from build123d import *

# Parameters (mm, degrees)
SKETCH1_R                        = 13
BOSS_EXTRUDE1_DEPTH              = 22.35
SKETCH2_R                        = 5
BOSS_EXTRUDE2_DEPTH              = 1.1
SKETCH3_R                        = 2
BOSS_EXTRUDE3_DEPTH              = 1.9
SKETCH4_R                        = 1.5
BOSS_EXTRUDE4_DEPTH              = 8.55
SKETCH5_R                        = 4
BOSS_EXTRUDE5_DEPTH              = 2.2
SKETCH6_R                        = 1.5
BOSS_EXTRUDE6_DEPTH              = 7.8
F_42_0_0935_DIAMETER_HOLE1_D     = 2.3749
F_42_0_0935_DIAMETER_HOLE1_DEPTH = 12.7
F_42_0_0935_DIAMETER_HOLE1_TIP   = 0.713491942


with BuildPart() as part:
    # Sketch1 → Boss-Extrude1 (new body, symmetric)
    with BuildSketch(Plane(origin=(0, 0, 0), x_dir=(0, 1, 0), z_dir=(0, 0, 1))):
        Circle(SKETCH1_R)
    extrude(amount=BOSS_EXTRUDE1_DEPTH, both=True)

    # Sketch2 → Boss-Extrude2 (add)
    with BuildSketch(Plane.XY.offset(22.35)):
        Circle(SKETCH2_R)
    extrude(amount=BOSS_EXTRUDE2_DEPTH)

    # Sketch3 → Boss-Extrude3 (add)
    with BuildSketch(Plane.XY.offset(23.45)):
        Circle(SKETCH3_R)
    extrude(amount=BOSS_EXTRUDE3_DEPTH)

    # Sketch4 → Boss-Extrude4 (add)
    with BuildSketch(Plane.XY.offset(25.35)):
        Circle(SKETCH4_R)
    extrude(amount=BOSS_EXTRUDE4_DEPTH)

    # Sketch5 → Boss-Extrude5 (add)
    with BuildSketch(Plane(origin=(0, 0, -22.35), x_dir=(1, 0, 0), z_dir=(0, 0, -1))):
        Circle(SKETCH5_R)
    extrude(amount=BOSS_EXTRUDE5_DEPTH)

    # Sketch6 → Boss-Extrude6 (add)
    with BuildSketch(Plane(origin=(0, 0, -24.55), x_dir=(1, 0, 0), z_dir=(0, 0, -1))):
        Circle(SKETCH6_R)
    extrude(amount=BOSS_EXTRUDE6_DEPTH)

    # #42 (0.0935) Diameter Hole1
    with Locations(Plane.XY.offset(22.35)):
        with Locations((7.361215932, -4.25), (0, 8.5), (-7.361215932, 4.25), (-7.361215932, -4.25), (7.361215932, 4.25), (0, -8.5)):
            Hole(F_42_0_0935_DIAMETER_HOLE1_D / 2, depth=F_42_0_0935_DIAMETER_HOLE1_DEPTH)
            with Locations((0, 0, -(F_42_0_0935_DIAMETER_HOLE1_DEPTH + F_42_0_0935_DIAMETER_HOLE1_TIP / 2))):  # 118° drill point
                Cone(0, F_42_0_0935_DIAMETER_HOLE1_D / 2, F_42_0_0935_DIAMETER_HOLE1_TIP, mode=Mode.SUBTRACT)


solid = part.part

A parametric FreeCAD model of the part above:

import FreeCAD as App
import Part
import Sketcher

doc = App.newDocument("Part")
body = doc.addObject("PartDesign::Body", "Body")

# Sketch on XY plane
sketch1 = body.newObject("Sketcher::SketchObject", "Sketch")
sketch1.AttachmentSupport = (doc.getObject("XY_Plane"), [""])
sketch1.MapMode = "FlatFace"
sketch1.addGeometry(Part.Circle(App.Vector(0, 0, 0), App.Vector(0, 0, 1), 13), False)
sketch1.addConstraint(Sketcher.Constraint("Coincident", 0, 3, -1, 1))
sketch1.addConstraint(Sketcher.Constraint("Diameter", 0, 26.0))
pad1 = body.newObject("PartDesign::Pad", "Pad")
pad1.Profile = sketch1
pad1.Length = 44.7
pad1.Midplane = True

# Sketch on XY plane
sketch2 = body.newObject("Sketcher::SketchObject", "Sketch001")
sketch2.AttachmentSupport = (doc.getObject("XY_Plane"), [""])
sketch2.MapMode = "FlatFace"
sketch2.AttachmentOffset = App.Placement(App.Vector(0, 0, 22.35), App.Rotation())
sketch2.addGeometry(Part.Circle(App.Vector(0, 0, 0), App.Vector(0, 0, 1), 5), False)
sketch2.addConstraint(Sketcher.Constraint("Coincident", 0, 3, -1, 1))
sketch2.addConstraint(Sketcher.Constraint("Diameter", 0, 10.0))
pad2 = body.newObject("PartDesign::Pad", "Pad001")
pad2.Profile = sketch2
pad2.Length = 1.1

# Sketch on XY plane
sketch3 = body.newObject("Sketcher::SketchObject", "Sketch002")
sketch3.AttachmentSupport = (doc.getObject("XY_Plane"), [""])
sketch3.MapMode = "FlatFace"
sketch3.AttachmentOffset = App.Placement(App.Vector(0, 0, 23.45), App.Rotation())
sketch3.addGeometry(Part.Circle(App.Vector(0, 0, 0), App.Vector(0, 0, 1), 2), False)
sketch3.addConstraint(Sketcher.Constraint("Coincident", 0, 3, -1, 1))
sketch3.addConstraint(Sketcher.Constraint("Diameter", 0, 4.0))
pad3 = body.newObject("PartDesign::Pad", "Pad002")
pad3.Profile = sketch3
pad3.Length = 1.9

# Sketch on XY plane
sketch4 = body.newObject("Sketcher::SketchObject", "Sketch003")
sketch4.AttachmentSupport = (doc.getObject("XY_Plane"), [""])
sketch4.MapMode = "FlatFace"
sketch4.AttachmentOffset = App.Placement(App.Vector(0, 0, 25.35), App.Rotation())
sketch4.addGeometry(Part.Circle(App.Vector(0, 0, 0), App.Vector(0, 0, 1), 1.5), False)
sketch4.addConstraint(Sketcher.Constraint("Coincident", 0, 3, -1, 1))
sketch4.addConstraint(Sketcher.Constraint("Diameter", 0, 3.0))
pad4 = body.newObject("PartDesign::Pad", "Pad003")
pad4.Profile = sketch4
pad4.Length = 8.55

# Sketch on XY plane
sketch5 = body.newObject("Sketcher::SketchObject", "Sketch004")
sketch5.AttachmentSupport = (doc.getObject("XY_Plane"), [""])
sketch5.MapMode = "FlatFace"
sketch5.AttachmentOffset = App.Placement(App.Vector(0, 0, -22.35), App.Rotation())
sketch5.addGeometry(Part.Circle(App.Vector(0, 0, 0), App.Vector(0, 0, 1), 4), False)
sketch5.addConstraint(Sketcher.Constraint("Coincident", 0, 3, -1, 1))
sketch5.addConstraint(Sketcher.Constraint("Diameter", 0, 8.0))
pad5 = body.newObject("PartDesign::Pad", "Pad004")
pad5.Profile = sketch5
pad5.Length = 2.2
pad5.Reversed = True

# Sketch on XY plane
sketch6 = body.newObject("Sketcher::SketchObject", "Sketch005")
sketch6.AttachmentSupport = (doc.getObject("XY_Plane"), [""])
sketch6.MapMode = "FlatFace"
sketch6.AttachmentOffset = App.Placement(App.Vector(0, 0, -24.55), App.Rotation())
sketch6.addGeometry(Part.Circle(App.Vector(0, 0, 0), App.Vector(0, 0, 1), 1.5), False)
sketch6.addConstraint(Sketcher.Constraint("Coincident", 0, 3, -1, 1))
sketch6.addConstraint(Sketcher.Constraint("Diameter", 0, 3.0))
pad6 = body.newObject("PartDesign::Pad", "Pad005")
pad6.Profile = sketch6
pad6.Length = 7.8
pad6.Reversed = True

# Sketch on XY plane
sketch7 = body.newObject("Sketcher::SketchObject", "Sketch006")
sketch7.AttachmentSupport = (doc.getObject("XY_Plane"), [""])
sketch7.MapMode = "FlatFace"
sketch7.AttachmentOffset = App.Placement(App.Vector(0, 0, 22.35), App.Rotation())
sketch7.addGeometry(Part.Circle(App.Vector(7.4, -4.2, 0), App.Vector(0, 0, 1), 1.2), False)
sketch7.addGeometry(Part.Circle(App.Vector(0, 8.5, 0), App.Vector(0, 0, 1), 1.2), False)
sketch7.addGeometry(Part.Circle(App.Vector(-7.4, 4.2, 0), App.Vector(0, 0, 1), 1.2), False)
sketch7.addGeometry(Part.Circle(App.Vector(-7.4, -4.2, 0), App.Vector(0, 0, 1), 1.2), False)
sketch7.addGeometry(Part.Circle(App.Vector(7.4, 4.2, 0), App.Vector(0, 0, 1), 1.2), False)
sketch7.addGeometry(Part.Circle(App.Vector(0, -8.5, 0), App.Vector(0, 0, 1), 1.2), False)
sketch7.addConstraint(Sketcher.Constraint("Equal", 0, 1))
sketch7.addConstraint(Sketcher.Constraint("Equal", 1, 2))
sketch7.addConstraint(Sketcher.Constraint("Equal", 2, 3))
sketch7.addConstraint(Sketcher.Constraint("Equal", 3, 4))
sketch7.addConstraint(Sketcher.Constraint("Equal", 4, 5))
sketch7.addConstraint(Sketcher.Constraint("Symmetric", 0, 3, 2, 3, -1, 1))
sketch7.addConstraint(Sketcher.Constraint("Symmetric", 3, 3, 4, 3, -1, 1))
sketch7.addConstraint(Sketcher.Constraint("Symmetric", 1, 3, 5, 3, -1, 1))
sketch7.addConstraint(Sketcher.Constraint("Symmetric", 0, 3, 3, 3, -2))
sketch7.addConstraint(Sketcher.Constraint("PointOnObject", 1, 3, -2))
sketch7.addConstraint(Sketcher.Constraint("DistanceY", 5, 3, 1, 3, 17.0))
sketch7.addConstraint(Sketcher.Constraint("Diameter", 0, 2.3749))
sketch7.addConstraint(Sketcher.Constraint("DistanceY", 0, 3, 2, 3, 8.5))
sketch7.addConstraint(Sketcher.Constraint("DistanceX", 2, 3, 0, 3, 14.722432))
doc.recompute()
hole = body.newObject("PartDesign::Hole", "Hole")
hole.Profile = sketch7
hole.ThreadType = "None"
hole.Diameter = 2.3749
hole.DepthType = "Dimension"
hole.Depth = 12.7
hole.DrillPoint = "Angled"
hole.DrillPointAngle = 118

doc.recompute()
